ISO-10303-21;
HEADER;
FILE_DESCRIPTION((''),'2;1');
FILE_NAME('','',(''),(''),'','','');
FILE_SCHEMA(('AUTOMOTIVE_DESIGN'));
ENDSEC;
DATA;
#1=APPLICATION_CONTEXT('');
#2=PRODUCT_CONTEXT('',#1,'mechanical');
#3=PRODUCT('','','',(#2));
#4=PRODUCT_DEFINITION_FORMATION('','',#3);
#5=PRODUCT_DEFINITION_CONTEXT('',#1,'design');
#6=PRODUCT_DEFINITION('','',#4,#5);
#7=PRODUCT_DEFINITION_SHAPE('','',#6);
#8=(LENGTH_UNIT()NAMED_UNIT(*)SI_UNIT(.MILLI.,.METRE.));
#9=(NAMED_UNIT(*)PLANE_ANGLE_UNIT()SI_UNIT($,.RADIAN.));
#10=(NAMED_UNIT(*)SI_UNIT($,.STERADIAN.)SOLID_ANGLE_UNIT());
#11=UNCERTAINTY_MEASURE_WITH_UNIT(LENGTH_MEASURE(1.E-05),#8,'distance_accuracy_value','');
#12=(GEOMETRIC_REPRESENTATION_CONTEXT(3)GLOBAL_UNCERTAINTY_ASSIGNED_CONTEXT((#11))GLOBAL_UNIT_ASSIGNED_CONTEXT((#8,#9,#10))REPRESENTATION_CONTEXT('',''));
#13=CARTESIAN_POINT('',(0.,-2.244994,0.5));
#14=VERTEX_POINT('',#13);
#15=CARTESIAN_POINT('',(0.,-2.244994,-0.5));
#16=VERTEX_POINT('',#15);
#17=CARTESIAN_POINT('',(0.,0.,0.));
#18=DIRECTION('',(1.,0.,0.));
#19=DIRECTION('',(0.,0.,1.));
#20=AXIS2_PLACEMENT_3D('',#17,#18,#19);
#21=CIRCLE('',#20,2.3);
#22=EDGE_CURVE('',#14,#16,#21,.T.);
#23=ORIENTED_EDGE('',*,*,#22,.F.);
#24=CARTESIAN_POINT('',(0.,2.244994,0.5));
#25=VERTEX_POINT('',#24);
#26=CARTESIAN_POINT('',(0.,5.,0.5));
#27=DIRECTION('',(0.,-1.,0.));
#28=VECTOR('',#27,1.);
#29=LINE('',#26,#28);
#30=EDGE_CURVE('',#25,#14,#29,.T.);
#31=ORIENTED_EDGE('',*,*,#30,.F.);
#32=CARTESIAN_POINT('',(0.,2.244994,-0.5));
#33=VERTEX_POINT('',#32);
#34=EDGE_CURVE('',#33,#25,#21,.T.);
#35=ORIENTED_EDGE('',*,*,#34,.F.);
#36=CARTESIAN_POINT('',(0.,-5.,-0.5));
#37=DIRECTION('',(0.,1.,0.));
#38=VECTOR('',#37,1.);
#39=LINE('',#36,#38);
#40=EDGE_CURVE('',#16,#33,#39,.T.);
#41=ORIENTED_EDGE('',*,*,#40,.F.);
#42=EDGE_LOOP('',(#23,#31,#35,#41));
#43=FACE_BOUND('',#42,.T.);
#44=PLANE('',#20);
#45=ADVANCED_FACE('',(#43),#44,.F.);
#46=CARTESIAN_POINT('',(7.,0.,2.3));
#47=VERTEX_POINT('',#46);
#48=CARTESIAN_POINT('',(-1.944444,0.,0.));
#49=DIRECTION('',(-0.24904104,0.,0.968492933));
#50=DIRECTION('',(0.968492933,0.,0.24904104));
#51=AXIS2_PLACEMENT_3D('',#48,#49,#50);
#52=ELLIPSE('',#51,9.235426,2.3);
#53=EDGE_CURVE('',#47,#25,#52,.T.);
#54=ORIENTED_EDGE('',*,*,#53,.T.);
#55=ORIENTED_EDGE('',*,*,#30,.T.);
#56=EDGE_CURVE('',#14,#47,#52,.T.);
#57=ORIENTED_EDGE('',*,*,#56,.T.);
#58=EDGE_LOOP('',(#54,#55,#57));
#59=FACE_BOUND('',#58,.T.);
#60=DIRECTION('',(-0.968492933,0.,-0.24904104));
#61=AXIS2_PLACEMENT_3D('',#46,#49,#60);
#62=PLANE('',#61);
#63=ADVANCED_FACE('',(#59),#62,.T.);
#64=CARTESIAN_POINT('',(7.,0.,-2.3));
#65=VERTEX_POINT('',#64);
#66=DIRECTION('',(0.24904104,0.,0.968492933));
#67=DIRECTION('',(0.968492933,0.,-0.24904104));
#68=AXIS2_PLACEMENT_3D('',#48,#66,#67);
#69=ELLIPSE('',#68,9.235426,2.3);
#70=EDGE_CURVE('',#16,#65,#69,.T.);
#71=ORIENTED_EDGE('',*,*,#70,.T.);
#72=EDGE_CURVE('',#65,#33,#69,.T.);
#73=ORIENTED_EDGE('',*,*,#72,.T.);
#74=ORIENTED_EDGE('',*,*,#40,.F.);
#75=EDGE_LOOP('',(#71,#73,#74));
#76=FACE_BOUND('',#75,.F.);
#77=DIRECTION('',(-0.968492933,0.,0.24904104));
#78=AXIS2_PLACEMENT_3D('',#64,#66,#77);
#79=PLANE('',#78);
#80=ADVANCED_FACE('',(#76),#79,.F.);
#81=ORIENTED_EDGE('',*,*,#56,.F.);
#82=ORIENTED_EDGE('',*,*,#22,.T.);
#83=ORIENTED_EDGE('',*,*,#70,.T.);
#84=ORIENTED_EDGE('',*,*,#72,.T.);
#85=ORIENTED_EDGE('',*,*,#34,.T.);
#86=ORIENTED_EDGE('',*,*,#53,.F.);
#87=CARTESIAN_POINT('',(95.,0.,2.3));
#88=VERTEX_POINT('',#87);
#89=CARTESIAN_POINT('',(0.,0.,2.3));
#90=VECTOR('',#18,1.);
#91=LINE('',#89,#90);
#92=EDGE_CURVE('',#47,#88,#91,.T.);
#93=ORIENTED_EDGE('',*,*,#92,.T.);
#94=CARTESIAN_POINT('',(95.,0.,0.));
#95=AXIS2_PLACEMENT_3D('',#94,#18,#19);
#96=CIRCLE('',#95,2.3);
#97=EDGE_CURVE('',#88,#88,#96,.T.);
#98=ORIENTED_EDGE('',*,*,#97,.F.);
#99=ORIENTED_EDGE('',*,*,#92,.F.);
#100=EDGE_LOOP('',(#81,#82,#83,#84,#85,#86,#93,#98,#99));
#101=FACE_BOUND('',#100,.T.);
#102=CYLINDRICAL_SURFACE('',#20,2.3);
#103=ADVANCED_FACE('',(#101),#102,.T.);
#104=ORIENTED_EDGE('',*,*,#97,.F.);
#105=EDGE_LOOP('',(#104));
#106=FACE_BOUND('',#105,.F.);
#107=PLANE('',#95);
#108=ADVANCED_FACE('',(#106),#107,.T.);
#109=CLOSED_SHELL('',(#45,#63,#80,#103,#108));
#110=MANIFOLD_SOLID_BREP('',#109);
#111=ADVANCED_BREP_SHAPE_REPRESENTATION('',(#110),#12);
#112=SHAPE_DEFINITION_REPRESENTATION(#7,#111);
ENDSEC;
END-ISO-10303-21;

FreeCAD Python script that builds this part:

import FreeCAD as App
import Part
import Sketcher
Q = App.Units.Quantity


def add_polygon(sketch, points):
    """Adds a closed chain of lines whose ends are joined by coincident constraints."""
    first, n = sketch.GeometryCount, len(points)
    for a, b in zip(points, points[1:] + points[:1]):
        sketch.addGeometry(Part.LineSegment(App.Vector(*a, 0), App.Vector(*b, 0)), False)
    for i in range(n):
        sketch.addConstraint(Sketcher.Constraint("Coincident", first + i, 2, first + (i + 1) % n, 1))

doc = App.newDocument("Part")
params = doc.addObject("Spreadsheet::Sheet", "Params")
for row, (alias, value) in enumerate([
    ("sketch1_width", "95 mm"),
    ("sketch1_height", "2.3 mm"),
    ("revolution_angle", "360 deg"),
    ("sketch2_width", "7 mm"),
    ("sketch2_height", "1.8 mm"),
    ("pocket1_length", "10 mm"),
], start=1):
    params.set(f"A{row}", alias)
    params.set(f"B{row}", "=" + value)
    params.setAlias(f"B{row}", alias)

body = doc.addObject("PartDesign::Body", "Body")

sketch1 = body.newObject("Sketcher::SketchObject", "Sketch")
sketch1.AttachmentSupport = (doc.getObject("XZ_Plane"), [""])
sketch1.MapMode = "FlatFace"
add_polygon(sketch1, [(95, 0), (0, 0), (0, 2.3), (95, 2.3)])
sketch1.addConstraint([
    Sketcher.Constraint("Horizontal", 0),
    Sketcher.Constraint("Vertical", 1),
    Sketcher.Constraint("Horizontal", 2),
    Sketcher.Constraint("Vertical", 3),
    Sketcher.Constraint("Coincident", 0, 2, -1, 1),
    Sketcher.Constraint("DistanceX", 0, 2, 0, 1, Q("95 mm")),
    Sketcher.Constraint("DistanceY", 1, 1, 1, 2, Q("2.3 mm")),
])
sketch1.setExpression("Constraints[9]", "Params.sketch1_width")
sketch1.setExpression("Constraints[10]", "Params.sketch1_height")
revolution = body.newObject("PartDesign::Revolution", "Revolution")
revolution.Profile = sketch1
revolution.ReferenceAxis = (sketch1, ["H_Axis"])
revolution.setExpression("Angle", "Params.revolution_angle")

sketch2 = body.newObject("Sketcher::SketchObject", "Sketch001")
sketch2.AttachmentSupport = (doc.getObject("XZ_Plane"), [""])
sketch2.MapMode = "FlatFace"
add_polygon(sketch2, [(0, 0.5), (0, 2.3), (7, 2.3)])
add_polygon(sketch2, [(7, -2.3), (0, -2.3), (0, -0.5)])
sketch2.addConstraint([
    Sketcher.Constraint("Vertical", 0),
    Sketcher.Constraint("Horizontal", 1),
    Sketcher.Constraint("Horizontal", 3),
    Sketcher.Constraint("Vertical", 4),
    Sketcher.Constraint("Symmetric", 0, 2, 3, 2, -1, 1),
    Sketcher.Constraint("Symmetric", 2, 2, 4, 2, -1),
    Sketcher.Constraint("Vertical", 1, 2, 5, 2),
    Sketcher.Constraint("DistanceX", 1, 1, 1, 2, Q("7 mm")),
    Sketcher.Constraint("DistanceY", 0, 1, 0, 2, Q("1.8 mm")),
    Sketcher.Constraint("DistanceY", -1, 1, 0, 2, Q("2.3 mm")),
])
sketch2.setExpression("Constraints[13]", "Params.sketch2_width")
sketch2.setExpression("Constraints[14]", "Params.sketch2_height")
pocket1 = body.newObject("PartDesign::Pocket", "Pocket")
pocket1.Profile = sketch2
pocket1.setExpression("Length", "Params.pocket1_length")
pocket1.Midplane = True

doc.recompute()
